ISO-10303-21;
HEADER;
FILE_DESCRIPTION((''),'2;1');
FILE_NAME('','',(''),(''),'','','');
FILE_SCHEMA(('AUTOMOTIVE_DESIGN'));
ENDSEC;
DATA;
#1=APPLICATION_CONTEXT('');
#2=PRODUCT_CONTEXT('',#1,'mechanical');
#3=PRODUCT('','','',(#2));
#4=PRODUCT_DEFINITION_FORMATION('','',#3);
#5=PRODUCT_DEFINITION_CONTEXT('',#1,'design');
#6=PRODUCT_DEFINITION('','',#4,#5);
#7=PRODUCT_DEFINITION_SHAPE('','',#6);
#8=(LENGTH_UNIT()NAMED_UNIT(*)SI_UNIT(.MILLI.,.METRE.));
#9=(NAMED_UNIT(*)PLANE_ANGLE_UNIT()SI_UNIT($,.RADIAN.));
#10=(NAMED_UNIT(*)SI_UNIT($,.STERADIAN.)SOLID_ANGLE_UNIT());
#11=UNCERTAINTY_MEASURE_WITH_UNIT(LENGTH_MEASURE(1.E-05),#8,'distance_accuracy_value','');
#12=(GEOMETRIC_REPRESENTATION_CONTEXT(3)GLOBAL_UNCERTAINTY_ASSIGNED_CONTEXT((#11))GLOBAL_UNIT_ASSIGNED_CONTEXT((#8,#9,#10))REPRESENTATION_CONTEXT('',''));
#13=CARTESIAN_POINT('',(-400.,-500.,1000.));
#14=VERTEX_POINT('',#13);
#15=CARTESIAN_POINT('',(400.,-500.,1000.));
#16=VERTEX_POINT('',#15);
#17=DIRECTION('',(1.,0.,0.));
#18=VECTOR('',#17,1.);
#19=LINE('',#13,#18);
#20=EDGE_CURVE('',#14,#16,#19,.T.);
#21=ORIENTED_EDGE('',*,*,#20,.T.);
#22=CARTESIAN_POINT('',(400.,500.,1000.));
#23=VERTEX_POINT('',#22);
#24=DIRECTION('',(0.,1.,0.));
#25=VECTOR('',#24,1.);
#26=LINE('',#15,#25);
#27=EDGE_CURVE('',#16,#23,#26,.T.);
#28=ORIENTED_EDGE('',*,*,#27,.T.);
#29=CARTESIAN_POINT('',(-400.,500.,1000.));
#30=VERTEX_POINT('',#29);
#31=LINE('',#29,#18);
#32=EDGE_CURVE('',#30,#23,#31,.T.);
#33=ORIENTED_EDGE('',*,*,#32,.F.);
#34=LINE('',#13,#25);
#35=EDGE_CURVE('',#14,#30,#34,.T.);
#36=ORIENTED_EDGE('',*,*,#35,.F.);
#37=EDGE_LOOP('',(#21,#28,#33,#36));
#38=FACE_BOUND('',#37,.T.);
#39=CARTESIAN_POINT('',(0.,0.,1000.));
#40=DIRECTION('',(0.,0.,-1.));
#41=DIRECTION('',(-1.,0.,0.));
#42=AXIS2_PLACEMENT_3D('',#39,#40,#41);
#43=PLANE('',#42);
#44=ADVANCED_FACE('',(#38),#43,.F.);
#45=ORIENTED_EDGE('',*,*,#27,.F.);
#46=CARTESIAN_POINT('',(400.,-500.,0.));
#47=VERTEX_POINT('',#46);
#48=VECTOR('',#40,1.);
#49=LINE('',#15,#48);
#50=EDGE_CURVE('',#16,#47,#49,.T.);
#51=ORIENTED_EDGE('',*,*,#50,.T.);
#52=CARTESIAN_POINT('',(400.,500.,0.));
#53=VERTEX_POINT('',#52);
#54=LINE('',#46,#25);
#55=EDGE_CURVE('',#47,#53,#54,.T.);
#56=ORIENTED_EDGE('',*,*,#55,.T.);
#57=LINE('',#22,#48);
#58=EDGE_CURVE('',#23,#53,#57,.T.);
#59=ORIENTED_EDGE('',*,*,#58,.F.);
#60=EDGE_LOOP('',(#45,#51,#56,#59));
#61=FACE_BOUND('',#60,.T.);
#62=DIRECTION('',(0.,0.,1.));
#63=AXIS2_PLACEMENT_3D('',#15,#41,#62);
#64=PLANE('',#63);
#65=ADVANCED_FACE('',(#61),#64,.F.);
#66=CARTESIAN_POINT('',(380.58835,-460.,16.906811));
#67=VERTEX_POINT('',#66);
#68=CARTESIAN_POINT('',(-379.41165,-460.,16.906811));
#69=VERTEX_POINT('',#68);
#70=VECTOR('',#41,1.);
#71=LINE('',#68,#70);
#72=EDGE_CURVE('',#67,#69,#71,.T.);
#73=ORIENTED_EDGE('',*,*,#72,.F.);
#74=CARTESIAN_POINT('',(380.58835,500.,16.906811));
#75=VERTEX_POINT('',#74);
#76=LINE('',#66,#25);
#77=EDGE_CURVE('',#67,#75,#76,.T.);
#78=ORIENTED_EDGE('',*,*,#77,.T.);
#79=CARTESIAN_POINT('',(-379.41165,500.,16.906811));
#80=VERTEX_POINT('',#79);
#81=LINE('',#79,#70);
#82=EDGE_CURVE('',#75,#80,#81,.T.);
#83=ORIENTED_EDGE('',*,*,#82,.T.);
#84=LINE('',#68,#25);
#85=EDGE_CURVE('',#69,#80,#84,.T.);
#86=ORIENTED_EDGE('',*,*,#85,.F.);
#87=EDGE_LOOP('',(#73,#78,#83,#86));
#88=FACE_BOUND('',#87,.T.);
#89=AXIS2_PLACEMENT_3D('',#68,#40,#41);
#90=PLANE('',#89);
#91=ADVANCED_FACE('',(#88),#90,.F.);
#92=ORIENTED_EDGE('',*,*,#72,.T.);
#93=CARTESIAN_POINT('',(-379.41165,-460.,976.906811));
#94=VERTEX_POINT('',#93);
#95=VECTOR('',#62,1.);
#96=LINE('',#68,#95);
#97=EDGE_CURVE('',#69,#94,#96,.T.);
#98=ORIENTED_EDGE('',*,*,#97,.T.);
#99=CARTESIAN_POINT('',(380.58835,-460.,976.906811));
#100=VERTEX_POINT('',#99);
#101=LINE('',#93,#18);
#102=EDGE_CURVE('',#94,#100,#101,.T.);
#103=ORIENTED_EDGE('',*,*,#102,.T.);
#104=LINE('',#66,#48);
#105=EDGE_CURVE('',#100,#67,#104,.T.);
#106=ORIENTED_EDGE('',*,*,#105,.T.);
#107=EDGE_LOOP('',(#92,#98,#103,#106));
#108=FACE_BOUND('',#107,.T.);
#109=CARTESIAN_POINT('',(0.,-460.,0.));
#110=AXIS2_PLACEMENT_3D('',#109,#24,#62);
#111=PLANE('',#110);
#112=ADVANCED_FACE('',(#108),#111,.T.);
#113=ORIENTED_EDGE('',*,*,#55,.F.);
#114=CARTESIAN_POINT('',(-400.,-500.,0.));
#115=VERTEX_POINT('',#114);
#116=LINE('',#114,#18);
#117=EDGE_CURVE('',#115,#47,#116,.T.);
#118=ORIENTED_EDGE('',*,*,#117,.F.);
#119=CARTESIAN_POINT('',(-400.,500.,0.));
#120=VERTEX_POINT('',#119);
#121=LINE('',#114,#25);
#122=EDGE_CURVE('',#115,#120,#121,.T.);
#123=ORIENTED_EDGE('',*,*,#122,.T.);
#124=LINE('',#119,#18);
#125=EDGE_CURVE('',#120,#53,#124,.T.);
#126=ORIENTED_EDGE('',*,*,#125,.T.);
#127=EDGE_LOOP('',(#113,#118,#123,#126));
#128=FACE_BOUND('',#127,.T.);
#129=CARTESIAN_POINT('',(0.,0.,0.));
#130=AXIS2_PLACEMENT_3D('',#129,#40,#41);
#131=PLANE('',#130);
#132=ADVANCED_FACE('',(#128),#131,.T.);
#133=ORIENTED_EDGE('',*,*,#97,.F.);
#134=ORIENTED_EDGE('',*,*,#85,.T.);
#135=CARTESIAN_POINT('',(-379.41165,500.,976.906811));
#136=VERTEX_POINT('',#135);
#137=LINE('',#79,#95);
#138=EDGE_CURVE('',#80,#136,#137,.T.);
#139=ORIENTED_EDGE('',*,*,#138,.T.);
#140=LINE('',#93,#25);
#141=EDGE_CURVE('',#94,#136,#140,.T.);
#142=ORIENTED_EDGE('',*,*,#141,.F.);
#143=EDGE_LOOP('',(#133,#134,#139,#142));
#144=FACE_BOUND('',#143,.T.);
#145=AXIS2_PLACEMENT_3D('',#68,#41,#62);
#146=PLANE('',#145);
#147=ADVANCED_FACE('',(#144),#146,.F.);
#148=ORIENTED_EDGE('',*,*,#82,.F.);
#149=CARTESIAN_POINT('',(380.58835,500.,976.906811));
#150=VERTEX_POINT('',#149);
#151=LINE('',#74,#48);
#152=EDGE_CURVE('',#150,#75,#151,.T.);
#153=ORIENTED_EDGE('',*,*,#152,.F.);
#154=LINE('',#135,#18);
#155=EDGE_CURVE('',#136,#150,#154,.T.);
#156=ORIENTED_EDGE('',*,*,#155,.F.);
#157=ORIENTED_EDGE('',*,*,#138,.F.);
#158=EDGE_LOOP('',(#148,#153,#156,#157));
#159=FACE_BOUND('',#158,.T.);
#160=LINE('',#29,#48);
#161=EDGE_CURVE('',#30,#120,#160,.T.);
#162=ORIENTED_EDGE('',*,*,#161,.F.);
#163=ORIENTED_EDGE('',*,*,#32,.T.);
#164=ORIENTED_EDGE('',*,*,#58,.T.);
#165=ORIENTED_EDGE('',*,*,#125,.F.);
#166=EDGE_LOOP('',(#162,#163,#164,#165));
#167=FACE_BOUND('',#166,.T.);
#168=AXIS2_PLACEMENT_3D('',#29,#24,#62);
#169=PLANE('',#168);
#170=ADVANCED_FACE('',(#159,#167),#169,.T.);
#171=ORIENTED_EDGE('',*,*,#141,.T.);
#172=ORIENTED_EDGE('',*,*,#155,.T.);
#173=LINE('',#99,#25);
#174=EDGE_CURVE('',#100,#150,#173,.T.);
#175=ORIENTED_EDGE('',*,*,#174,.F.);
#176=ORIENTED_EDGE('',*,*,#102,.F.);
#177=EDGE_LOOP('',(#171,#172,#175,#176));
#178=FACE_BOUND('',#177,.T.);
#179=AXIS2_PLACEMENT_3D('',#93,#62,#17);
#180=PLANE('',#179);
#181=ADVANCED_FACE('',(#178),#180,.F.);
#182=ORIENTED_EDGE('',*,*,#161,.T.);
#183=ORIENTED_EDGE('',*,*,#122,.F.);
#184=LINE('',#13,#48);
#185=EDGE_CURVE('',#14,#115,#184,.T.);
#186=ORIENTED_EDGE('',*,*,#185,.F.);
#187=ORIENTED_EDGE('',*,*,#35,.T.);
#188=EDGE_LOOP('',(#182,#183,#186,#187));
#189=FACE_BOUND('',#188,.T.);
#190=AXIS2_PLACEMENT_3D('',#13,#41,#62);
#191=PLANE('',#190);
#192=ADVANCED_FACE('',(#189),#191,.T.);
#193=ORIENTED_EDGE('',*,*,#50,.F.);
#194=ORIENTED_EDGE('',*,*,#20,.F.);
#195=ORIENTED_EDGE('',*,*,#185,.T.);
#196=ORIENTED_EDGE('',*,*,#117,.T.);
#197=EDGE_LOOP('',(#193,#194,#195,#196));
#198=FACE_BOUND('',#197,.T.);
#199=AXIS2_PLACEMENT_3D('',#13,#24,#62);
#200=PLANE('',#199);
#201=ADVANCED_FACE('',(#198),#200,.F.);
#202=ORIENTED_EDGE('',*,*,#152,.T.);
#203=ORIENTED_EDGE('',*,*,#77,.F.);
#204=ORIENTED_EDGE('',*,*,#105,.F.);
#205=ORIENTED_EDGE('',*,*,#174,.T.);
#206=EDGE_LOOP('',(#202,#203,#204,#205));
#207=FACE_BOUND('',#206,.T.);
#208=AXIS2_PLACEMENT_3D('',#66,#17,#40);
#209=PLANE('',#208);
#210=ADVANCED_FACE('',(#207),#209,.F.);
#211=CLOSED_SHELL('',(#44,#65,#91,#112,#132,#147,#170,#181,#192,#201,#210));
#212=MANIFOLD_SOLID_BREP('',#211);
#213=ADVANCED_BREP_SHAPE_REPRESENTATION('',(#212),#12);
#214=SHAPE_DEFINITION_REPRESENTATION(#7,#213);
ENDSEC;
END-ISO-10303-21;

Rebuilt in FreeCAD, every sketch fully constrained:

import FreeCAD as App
import Part
import Sketcher


def add_polygon(sketch, points):
    """Adds a closed chain of lines whose ends are joined by coincident constraints."""
    first, n = sketch.GeometryCount, len(points)
    for a, b in zip(points, points[1:] + points[:1]):
        sketch.addGeometry(Part.LineSegment(App.Vector(*a, 0), App.Vector(*b, 0)), False)
    for i in range(n):
        sketch.addConstraint(Sketcher.Constraint("Coincident", first + i, 2, first + (i + 1) % n, 1))

doc = App.newDocument("Part")
body = doc.addObject("PartDesign::Body", "Body")

# Sketch on XY plane
sketch1 = body.newObject("Sketcher::SketchObject", "Sketch")
sketch1.AttachmentSupport = (doc.getObject("XY_Plane"), [""])
sketch1.MapMode = "FlatFace"
add_polygon(sketch1, [(-400, 500), (-400, -500), (400, -500), (400, 500)])  # lines 0-3
sketch1.addConstraint([
    Sketcher.Constraint("Vertical", 0),
    Sketcher.Constraint("Horizontal", 1),
    Sketcher.Constraint("Vertical", 2),
    Sketcher.Constraint("Horizontal", 3),
    Sketcher.Constraint("Symmetric", 0, 2, 2, 2, -1, 1),
    Sketcher.Constraint("DistanceX", 1, 1, 1, 2, 800.0),
    Sketcher.Constraint("DistanceY", 0, 2, 0, 1, 1000.0),
])
pad1 = body.newObject("PartDesign::Pad", "Pad")
pad1.Profile = sketch1
pad1.Length = 1000

# Sketch on XZ plane
sketch2 = body.newObject("Sketcher::SketchObject", "Sketch001")
sketch2.AttachmentSupport = (doc.getObject("XZ_Plane"), [""])
sketch2.MapMode = "FlatFace"
sketch2.AttachmentOffset = App.Placement(App.Vector(0, 0, -500), App.Rotation())
add_polygon(sketch2, [(-379.41165, 16.906811), (-379.41165, 976.906811), (380.58835, 976.906811), (380.58835, 16.906811)])  # lines 0-3
sketch2.addConstraint([
    Sketcher.Constraint("Vertical", 0),
    Sketcher.Constraint("Horizontal", 1),
    Sketcher.Constraint("Vertical", 2),
    Sketcher.Constraint("Horizontal", 3),
    Sketcher.Constraint("DistanceX", 1, 1, 1, 2, 760.0),
    Sketcher.Constraint("DistanceY", 0, 1, 0, 2, 960.0),
    Sketcher.Constraint("DistanceX", 0, 2, -1, 1, 379.41165),
    Sketcher.Constraint("DistanceY", -1, 1, 0, 2, 976.906811),
])
pocket1 = body.newObject("PartDesign::Pocket", "Pocket")
pocket1.Profile = sketch2
pocket1.Length = 960
pocket1.Reversed = True

doc.recompute()
